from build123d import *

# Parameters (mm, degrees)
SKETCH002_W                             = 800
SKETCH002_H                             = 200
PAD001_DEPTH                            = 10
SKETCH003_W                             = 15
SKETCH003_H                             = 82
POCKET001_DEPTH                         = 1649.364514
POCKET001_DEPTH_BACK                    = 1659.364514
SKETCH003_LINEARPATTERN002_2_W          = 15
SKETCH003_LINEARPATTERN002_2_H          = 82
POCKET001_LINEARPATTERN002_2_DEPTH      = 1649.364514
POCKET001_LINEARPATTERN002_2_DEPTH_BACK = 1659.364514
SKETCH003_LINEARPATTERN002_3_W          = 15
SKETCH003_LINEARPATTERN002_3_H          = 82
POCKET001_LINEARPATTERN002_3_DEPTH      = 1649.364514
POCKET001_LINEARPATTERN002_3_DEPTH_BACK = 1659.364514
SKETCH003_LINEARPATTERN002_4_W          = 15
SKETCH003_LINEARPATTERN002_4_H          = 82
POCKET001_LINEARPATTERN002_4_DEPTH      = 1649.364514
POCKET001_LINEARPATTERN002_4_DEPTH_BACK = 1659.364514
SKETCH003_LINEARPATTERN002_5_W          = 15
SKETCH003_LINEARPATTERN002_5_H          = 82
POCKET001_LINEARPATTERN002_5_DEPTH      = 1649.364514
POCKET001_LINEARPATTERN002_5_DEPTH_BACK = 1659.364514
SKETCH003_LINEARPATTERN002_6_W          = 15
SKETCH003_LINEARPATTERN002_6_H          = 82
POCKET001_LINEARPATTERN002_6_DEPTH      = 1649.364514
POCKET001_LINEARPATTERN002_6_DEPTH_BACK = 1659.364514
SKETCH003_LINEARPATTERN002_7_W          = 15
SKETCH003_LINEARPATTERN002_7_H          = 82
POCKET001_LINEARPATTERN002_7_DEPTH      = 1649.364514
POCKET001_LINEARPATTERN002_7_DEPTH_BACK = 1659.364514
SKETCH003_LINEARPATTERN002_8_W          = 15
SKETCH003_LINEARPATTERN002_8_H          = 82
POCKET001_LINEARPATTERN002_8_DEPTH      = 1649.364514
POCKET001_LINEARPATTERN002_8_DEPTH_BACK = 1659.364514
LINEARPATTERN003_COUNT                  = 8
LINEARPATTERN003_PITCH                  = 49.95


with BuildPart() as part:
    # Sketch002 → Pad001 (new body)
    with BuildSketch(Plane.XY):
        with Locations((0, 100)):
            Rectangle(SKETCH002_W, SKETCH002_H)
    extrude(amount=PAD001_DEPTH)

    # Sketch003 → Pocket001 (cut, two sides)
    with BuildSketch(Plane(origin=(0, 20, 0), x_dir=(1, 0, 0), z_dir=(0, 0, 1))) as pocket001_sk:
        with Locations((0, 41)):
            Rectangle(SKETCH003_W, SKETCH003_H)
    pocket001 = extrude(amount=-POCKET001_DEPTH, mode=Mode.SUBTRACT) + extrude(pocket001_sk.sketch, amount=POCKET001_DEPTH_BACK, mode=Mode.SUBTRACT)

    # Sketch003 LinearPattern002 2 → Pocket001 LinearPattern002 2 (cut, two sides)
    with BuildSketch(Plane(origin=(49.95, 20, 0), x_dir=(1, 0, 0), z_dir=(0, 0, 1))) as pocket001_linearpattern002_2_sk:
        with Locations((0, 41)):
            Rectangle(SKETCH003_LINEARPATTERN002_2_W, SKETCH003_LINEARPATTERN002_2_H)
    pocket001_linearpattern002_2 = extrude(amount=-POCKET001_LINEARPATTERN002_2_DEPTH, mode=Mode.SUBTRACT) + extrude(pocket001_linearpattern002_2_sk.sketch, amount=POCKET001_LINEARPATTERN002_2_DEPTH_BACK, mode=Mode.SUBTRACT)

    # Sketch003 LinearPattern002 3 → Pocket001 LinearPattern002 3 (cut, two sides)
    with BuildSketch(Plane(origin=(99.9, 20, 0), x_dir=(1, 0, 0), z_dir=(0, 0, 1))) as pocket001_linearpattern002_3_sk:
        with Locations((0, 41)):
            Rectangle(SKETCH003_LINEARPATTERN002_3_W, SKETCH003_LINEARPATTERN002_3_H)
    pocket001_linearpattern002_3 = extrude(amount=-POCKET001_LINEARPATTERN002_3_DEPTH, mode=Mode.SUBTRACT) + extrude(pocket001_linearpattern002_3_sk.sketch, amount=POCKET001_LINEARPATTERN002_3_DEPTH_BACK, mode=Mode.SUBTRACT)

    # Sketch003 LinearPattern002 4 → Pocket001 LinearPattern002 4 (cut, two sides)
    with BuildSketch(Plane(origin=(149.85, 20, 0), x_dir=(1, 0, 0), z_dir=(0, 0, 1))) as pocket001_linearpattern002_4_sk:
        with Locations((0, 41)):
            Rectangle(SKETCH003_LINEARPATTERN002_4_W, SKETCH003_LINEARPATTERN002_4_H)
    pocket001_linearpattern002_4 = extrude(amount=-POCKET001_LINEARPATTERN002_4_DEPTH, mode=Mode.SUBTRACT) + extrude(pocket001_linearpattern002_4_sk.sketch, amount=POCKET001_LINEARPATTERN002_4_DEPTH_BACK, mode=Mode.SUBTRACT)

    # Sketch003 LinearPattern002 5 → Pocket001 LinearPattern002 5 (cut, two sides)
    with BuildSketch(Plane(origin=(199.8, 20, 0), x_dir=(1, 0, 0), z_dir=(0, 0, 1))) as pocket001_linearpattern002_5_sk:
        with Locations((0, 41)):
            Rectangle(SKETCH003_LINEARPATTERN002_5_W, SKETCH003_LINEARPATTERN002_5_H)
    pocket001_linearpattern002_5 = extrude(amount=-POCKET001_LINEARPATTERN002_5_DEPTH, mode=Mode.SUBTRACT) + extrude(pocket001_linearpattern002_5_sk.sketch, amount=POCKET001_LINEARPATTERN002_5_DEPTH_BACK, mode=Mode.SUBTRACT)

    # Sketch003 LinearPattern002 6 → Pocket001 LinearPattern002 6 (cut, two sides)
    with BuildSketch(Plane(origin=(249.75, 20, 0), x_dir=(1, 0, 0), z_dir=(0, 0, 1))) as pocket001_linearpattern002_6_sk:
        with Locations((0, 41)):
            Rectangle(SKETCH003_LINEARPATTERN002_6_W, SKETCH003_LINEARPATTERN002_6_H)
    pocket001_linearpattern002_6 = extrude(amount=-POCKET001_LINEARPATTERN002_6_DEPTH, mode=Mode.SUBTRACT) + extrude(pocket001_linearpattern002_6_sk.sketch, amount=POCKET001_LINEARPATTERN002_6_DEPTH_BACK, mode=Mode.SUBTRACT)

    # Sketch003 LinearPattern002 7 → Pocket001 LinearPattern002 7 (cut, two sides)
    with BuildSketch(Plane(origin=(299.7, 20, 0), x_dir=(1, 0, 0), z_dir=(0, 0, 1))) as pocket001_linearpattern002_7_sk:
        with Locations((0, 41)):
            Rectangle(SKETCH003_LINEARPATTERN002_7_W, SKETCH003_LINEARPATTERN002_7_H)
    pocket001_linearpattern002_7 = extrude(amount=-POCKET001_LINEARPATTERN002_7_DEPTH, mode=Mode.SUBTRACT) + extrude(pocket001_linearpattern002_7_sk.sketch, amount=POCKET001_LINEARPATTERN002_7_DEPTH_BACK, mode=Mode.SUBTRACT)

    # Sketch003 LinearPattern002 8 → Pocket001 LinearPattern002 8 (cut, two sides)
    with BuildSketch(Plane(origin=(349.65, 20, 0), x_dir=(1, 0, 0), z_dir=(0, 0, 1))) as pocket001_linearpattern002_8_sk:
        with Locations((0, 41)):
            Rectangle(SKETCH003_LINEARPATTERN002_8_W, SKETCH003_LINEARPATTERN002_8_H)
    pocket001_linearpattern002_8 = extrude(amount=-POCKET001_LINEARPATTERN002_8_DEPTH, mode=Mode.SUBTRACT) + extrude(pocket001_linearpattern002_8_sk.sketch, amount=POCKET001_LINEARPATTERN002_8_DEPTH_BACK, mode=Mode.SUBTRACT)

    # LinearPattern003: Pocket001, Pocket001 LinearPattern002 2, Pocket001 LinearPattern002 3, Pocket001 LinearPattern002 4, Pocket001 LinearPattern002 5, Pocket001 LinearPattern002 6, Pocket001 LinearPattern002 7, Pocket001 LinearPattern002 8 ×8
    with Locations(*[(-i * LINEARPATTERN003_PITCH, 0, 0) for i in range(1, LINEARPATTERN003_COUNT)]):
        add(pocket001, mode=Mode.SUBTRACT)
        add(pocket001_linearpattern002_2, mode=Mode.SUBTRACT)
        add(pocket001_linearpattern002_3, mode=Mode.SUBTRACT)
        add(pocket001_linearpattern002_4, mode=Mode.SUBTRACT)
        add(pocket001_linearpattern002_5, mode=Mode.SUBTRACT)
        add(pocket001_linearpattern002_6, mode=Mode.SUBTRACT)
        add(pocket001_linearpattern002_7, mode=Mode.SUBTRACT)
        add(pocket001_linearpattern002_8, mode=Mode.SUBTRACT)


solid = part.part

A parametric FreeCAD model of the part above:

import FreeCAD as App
import Part
import Sketcher

V = App.Vector

doc = App.newDocument("Part")
body = doc.addObject("PartDesign::Body", "Body")

sketch1 = body.newObject("Sketcher::SketchObject", "Sketch")
sketch1.AttachmentSupport = (doc.getObject("XY_Plane"), [""])
sketch1.MapMode = "FlatFace"
sketch1.addGeometry([
    Part.LineSegment(V(-400, 200, 0), V(-400, 0, 0)),
    Part.LineSegment(V(-400, 0, 0), V(400, 0, 0)),
    Part.LineSegment(V(400, 0, 0), V(400, 200, 0)),
    Part.LineSegment(V(400, 200, 0), V(-400, 200, 0)),
], False)
sketch1.addConstraint([
    Sketcher.Constraint("Coincident", 0, 2, 1, 1),
    Sketcher.Constraint("Coincident", 1, 2, 2, 1),
    Sketcher.Constraint("Coincident", 2, 2, 3, 1),
    Sketcher.Constraint("Coincident", 3, 2, 0, 1),
    Sketcher.Constraint("Vertical", 0),
    Sketcher.Constraint("Horizontal", 1),
    Sketcher.Constraint("Vertical", 2),
    Sketcher.Constraint("Horizontal", 3),
    Sketcher.Constraint("Symmetric", 0, 2, 1, 2, -1, 1),
    Sketcher.Constraint("DistanceX", 1, 1, 1, 2, 800.0),
    Sketcher.Constraint("DistanceY", 0, 2, 0, 1, 200.0),
])
pad1 = body.newObject("PartDesign::Pad", "Pad")
pad1.Profile = sketch1
pad1.Length = 10

sketch2 = body.newObject("Sketcher::SketchObject", "Sketch001")
sketch2.AttachmentSupport = (doc.getObject("XY_Plane"), [""])
sketch2.MapMode = "FlatFace"
sketch2.addGeometry([
    Part.LineSegment(V(-8, 102, 0), V(-8, 20, 0)),
    Part.LineSegment(V(-8, 20, 0), V(8, 20, 0)),
    Part.LineSegment(V(8, 20, 0), V(8, 102, 0)),
    Part.LineSegment(V(8, 102, 0), V(-8, 102, 0)),
], False)
sketch2.addConstraint([
    Sketcher.Constraint("Coincident", 0, 2, 1, 1),
    Sketcher.Constraint("Coincident", 1, 2, 2, 1),
    Sketcher.Constraint("Coincident", 2, 2, 3, 1),
    Sketcher.Constraint("Coincident", 3, 2, 0, 1),
    Sketcher.Constraint("Vertical", 0),
    Sketcher.Constraint("Horizontal", 1),
    Sketcher.Constraint("Vertical", 2),
    Sketcher.Constraint("Horizontal", 3),
    Sketcher.Constraint("DistanceX", 1, 1, 1, 2, 15.0),
    Sketcher.Constraint("DistanceY", 0, 2, 0, 1, 82.0),
    Sketcher.Constraint("DistanceY", -1, 1, 0, 2, 20.0),
    Sketcher.Constraint("DistanceX", 0, 2, -1, 1, 7.5),
])
pocket1 = body.newObject("PartDesign::Pocket", "Pocket")
pocket1.Profile = sketch2
pocket1.Type = "ThroughAll"
pocket1.Midplane = True

sketch3 = body.newObject("Sketcher::SketchObject", "Sketch002")
sketch3.AttachmentSupport = (doc.getObject("XY_Plane"), [""])
sketch3.MapMode = "FlatFace"
sketch3.addGeometry([
    Part.LineSegment(V(42, 102, 0), V(42, 20, 0)),
    Part.LineSegment(V(42, 20, 0), V(57, 20, 0)),
    Part.LineSegment(V(57, 20, 0), V(57, 102, 0)),
    Part.LineSegment(V(57, 102, 0), V(42, 102, 0)),
], False)
sketch3.addConstraint([
    Sketcher.Constraint("Coincident", 0, 2, 1, 1),
    Sketcher.Constraint("Coincident", 1, 2, 2, 1),
    Sketcher.Constraint("Coincident", 2, 2, 3, 1),
    Sketcher.Constraint("Coincident", 3, 2, 0, 1),
    Sketcher.Constraint("Vertical", 0),
    Sketcher.Constraint("Horizontal", 1),
    Sketcher.Constraint("Vertical", 2),
    Sketcher.Constraint("Horizontal", 3),
    Sketcher.Constraint("DistanceX", 1, 1, 1, 2, 15.0),
    Sketcher.Constraint("DistanceY", 0, 2, 0, 1, 82.0),
    Sketcher.Constraint("DistanceY", -1, 1, 0, 2, 20.0),
    Sketcher.Constraint("DistanceX", -1, 1, 0, 2, 42.45),
])
pocket2 = body.newObject("PartDesign::Pocket", "Pocket001")
pocket2.Profile = sketch3
pocket2.Type = "ThroughAll"
pocket2.Midplane = True

sketch4 = body.newObject("Sketcher::SketchObject", "Sketch003")
sketch4.AttachmentSupport = (doc.getObject("XY_Plane"), [""])
sketch4.MapMode = "FlatFace"
sketch4.addGeometry([
    Part.LineSegment(V(92, 102, 0), V(92, 20, 0)),
    Part.LineSegment(V(92, 20, 0), V(107, 20, 0)),
    Part.LineSegment(V(107, 20, 0), V(107, 102, 0)),
    Part.LineSegment(V(107, 102, 0), V(92, 102, 0)),
], False)
sketch4.addConstraint([
    Sketcher.Constraint("Coincident", 0, 2, 1, 1),
    Sketcher.Constraint("Coincident", 1, 2, 2, 1),
    Sketcher.Constraint("Coincident", 2, 2, 3, 1),
    Sketcher.Constraint("Coincident", 3, 2, 0, 1),
    Sketcher.Constraint("Vertical", 0),
    Sketcher.Constraint("Horizontal", 1),
    Sketcher.Constraint("Vertical", 2),
    Sketcher.Constraint("Horizontal", 3),
    Sketcher.Constraint("DistanceX", 1, 1, 1, 2, 15.0),
    Sketcher.Constraint("DistanceY", 0, 2, 0, 1, 82.0),
    Sketcher.Constraint("DistanceY", -1, 1, 0, 2, 20.0),
    Sketcher.Constraint("DistanceX", -1, 1, 0, 2, 92.4),
])
pocket3 = body.newObject("PartDesign::Pocket", "Pocket002")
pocket3.Profile = sketch4
pocket3.Type = "ThroughAll"
pocket3.Midplane = True

sketch5 = body.newObject("Sketcher::SketchObject", "Sketch004")
sketch5.AttachmentSupport = (doc.getObject("XY_Plane"), [""])
sketch5.MapMode = "FlatFace"
sketch5.addGeometry([
    Part.LineSegment(V(142, 102, 0), V(142, 20, 0)),
    Part.LineSegment(V(142, 20, 0), V(157, 20, 0)),
    Part.LineSegment(V(157, 20, 0), V(157, 102, 0)),
    Part.LineSegment(V(157, 102, 0), V(142, 102, 0)),
], False)
sketch5.addConstraint([
    Sketcher.Constraint("Coincident", 0, 2, 1, 1),
    Sketcher.Constraint("Coincident", 1, 2, 2, 1),
    Sketcher.Constraint("Coincident", 2, 2, 3, 1),
    Sketcher.Constraint("Coincident", 3, 2, 0, 1),
    Sketcher.Constraint("Vertical", 0),
    Sketcher.Constraint("Horizontal", 1),
    Sketcher.Constraint("Vertical", 2),
    Sketcher.Constraint("Horizontal", 3),
    Sketcher.Constraint("DistanceX", 1, 1, 1, 2, 15.0),
    Sketcher.Constraint("DistanceY", 0, 2, 0, 1, 82.0),
    Sketcher.Constraint("DistanceY", -1, 1, 0, 2, 20.0),
    Sketcher.Constraint("DistanceX", -1, 1, 0, 2, 142.35),
])
pocket4 = body.newObject("PartDesign::Pocket", "Pocket003")
pocket4.Profile = sketch5
pocket4.Type = "ThroughAll"
pocket4.Midplane = True

sketch6 = body.newObject("Sketcher::SketchObject", "Sketch005")
sketch6.AttachmentSupport = (doc.getObject("XY_Plane"), [""])
sketch6.MapMode = "FlatFace"
sketch6.addGeometry([
    Part.LineSegment(V(192, 102, 0), V(192, 20, 0)),
    Part.LineSegment(V(192, 20, 0), V(207, 20, 0)),
    Part.LineSegment(V(207, 20, 0), V(207, 102, 0)),
    Part.LineSegment(V(207, 102, 0), V(192, 102, 0)),
], False)
sketch6.addConstraint([
    Sketcher.Constraint("Coincident", 0, 2, 1, 1),
    Sketcher.Constraint("Coincident", 1, 2, 2, 1),
    Sketcher.Constraint("Coincident", 2, 2, 3, 1),
    Sketcher.Constraint("Coincident", 3, 2, 0, 1),
    Sketcher.Constraint("Vertical", 0),
    Sketcher.Constraint("Horizontal", 1),
    Sketcher.Constraint("Vertical", 2),
    Sketcher.Constraint("Horizontal", 3),
    Sketcher.Constraint("DistanceX", 1, 1, 1, 2, 15.0),
    Sketcher.Constraint("DistanceY", 0, 2, 0, 1, 82.0),
    Sketcher.Constraint("DistanceY", -1, 1, 0, 2, 20.0),
    Sketcher.Constraint("DistanceX", -1, 1, 0, 2, 192.3),
])
pocket5 = body.newObject("PartDesign::Pocket", "Pocket004")
pocket5.Profile = sketch6
pocket5.Type = "ThroughAll"
pocket5.Midplane = True

sketch7 = body.newObject("Sketcher::SketchObject", "Sketch006")
sketch7.AttachmentSupport = (doc.getObject("XY_Plane"), [""])
sketch7.MapMode = "FlatFace"
sketch7.addGeometry([
    Part.LineSegment(V(242, 102, 0), V(242, 20, 0)),
    Part.LineSegment(V(242, 20, 0), V(257, 20, 0)),
    Part.LineSegment(V(257, 20, 0), V(257, 102, 0)),
    Part.LineSegment(V(257, 102, 0), V(242, 102, 0)),
], False)
sketch7.addConstraint([
    Sketcher.Constraint("Coincident", 0, 2, 1, 1),
    Sketcher.Constraint("Coincident", 1, 2, 2, 1),
    Sketcher.Constraint("Coincident", 2, 2, 3, 1),
    Sketcher.Constraint("Coincident", 3, 2, 0, 1),
    Sketcher.Constraint("Vertical", 0),
    Sketcher.Constraint("Horizontal", 1),
    Sketcher.Constraint("Vertical", 2),
    Sketcher.Constraint("Horizontal", 3),
    Sketcher.Constraint("DistanceX", 1, 1, 1, 2, 15.0),
    Sketcher.Constraint("DistanceY", 0, 2, 0, 1, 82.0),
    Sketcher.Constraint("DistanceY", -1, 1, 0, 2, 20.0),
    Sketcher.Constraint("DistanceX", -1, 1, 0, 2, 242.25),
])
pocket6 = body.newObject("PartDesign::Pocket", "Pocket005")
pocket6.Profile = sketch7
pocket6.Type = "ThroughAll"
pocket6.Midplane = True

sketch8 = body.newObject("Sketcher::SketchObject", "Sketch007")
sketch8.AttachmentSupport = (doc.getObject("XY_Plane"), [""])
sketch8.MapMode = "FlatFace"
sketch8.addGeometry([
    Part.LineSegment(V(292, 102, 0), V(292, 20, 0)),
    Part.LineSegment(V(292, 20, 0), V(307, 20, 0)),
    Part.LineSegment(V(307, 20, 0), V(307, 102, 0)),
    Part.LineSegment(V(307, 102, 0), V(292, 102, 0)),
], False)
sketch8.addConstraint([
    Sketcher.Constraint("Coincident", 0, 2, 1, 1),
    Sketcher.Constraint("Coincident", 1, 2, 2, 1),
    Sketcher.Constraint("Coincident", 2, 2, 3, 1),
    Sketcher.Constraint("Coincident", 3, 2, 0, 1),
    Sketcher.Constraint("Vertical", 0),
    Sketcher.Constraint("Horizontal", 1),
    Sketcher.Constraint("Vertical", 2),
    Sketcher.Constraint("Horizontal", 3),
    Sketcher.Constraint("DistanceX", 1, 1, 1, 2, 15.0),
    Sketcher.Constraint("DistanceY", 0, 2, 0, 1, 82.0),
    Sketcher.Constraint("DistanceY", -1, 1, 0, 2, 20.0),
    Sketcher.Constraint("DistanceX", -1, 1, 0, 2, 292.2),
])
pocket7 = body.newObject("PartDesign::Pocket", "Pocket006")
pocket7.Profile = sketch8
pocket7.Type = "ThroughAll"
pocket7.Midplane = True

sketch9 = body.newObject("Sketcher::SketchObject", "Sketch008")
sketch9.AttachmentSupport = (doc.getObject("XY_Plane"), [""])
sketch9.MapMode = "FlatFace"
sketch9.addGeometry([
    Part.LineSegment(V(342, 102, 0), V(342, 20, 0)),
    Part.LineSegment(V(342, 20, 0), V(357, 20, 0)),
    Part.LineSegment(V(357, 20, 0), V(357, 102, 0)),
    Part.LineSegment(V(357, 102, 0), V(342, 102, 0)),
], False)
sketch9.addConstraint([
    Sketcher.Constraint("Coincident", 0, 2, 1, 1),
    Sketcher.Constraint("Coincident", 1, 2, 2, 1),
    Sketcher.Constraint("Coincident", 2, 2, 3, 1),
    Sketcher.Constraint("Coincident", 3, 2, 0, 1),
    Sketcher.Constraint("Vertical", 0),
    Sketcher.Constraint("Horizontal", 1),
    Sketcher.Constraint("Vertical", 2),
    Sketcher.Constraint("Horizontal", 3),
    Sketcher.Constraint("DistanceX", 1, 1, 1, 2, 15.0),
    Sketcher.Constraint("DistanceY", 0, 2, 0, 1, 82.0),
    Sketcher.Constraint("DistanceY", -1, 1, 0, 2, 20.0),
    Sketcher.Constraint("DistanceX", -1, 1, 0, 2, 342.15),
])
pocket8 = body.newObject("PartDesign::Pocket", "Pocket007")
pocket8.Profile = sketch9
pocket8.Type = "ThroughAll"
pocket8.Midplane = True
doc.recompute()

linearpattern = body.newObject("PartDesign::LinearPattern", "LinearPattern")
linearpattern.Originals = [pocket1, pocket2, pocket3, pocket4, pocket5, pocket6, pocket7, pocket8]
linearpattern.Direction = (doc.getObject("X_Axis"), [""])
linearpattern.Mode = "offset"
linearpattern.Offset = 49.95
linearpattern.Occurrences = 8
linearpattern.Reversed = True
body.Tip = linearpattern

doc.recompute()
